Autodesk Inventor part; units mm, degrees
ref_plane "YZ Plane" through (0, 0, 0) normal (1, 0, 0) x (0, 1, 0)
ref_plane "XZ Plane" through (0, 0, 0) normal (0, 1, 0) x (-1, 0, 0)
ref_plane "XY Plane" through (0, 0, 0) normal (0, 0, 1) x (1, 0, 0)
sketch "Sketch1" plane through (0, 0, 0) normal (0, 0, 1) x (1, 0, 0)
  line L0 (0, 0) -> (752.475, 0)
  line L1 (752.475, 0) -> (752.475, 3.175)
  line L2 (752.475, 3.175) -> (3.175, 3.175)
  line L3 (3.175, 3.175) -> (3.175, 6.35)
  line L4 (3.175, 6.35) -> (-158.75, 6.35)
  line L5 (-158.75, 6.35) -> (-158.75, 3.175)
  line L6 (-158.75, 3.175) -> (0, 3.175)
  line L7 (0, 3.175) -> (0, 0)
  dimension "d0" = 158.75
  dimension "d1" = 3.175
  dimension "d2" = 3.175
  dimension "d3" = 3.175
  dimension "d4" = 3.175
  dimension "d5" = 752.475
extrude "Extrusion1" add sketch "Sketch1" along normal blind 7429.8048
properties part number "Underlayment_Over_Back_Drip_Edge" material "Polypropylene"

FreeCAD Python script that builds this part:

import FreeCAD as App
import Part
import Sketcher

V = App.Vector
Q = App.Units.Quantity


def add_polygon(sketch, points):
    """Adds a closed chain of lines whose ends are joined by coincident constraints."""
    first, n = sketch.GeometryCount, len(points)
    for a, b in zip(points, points[1:] + points[:1]):
        sketch.addGeometry(Part.LineSegment(App.Vector(*a, 0), App.Vector(*b, 0)), False)
    for i in range(n):
        sketch.addConstraint(Sketcher.Constraint("Coincident", first + i, 2, first + (i + 1) % n, 1))

doc = App.newDocument("Part")
body = doc.addObject("PartDesign::Body", "Body")

sketch1 = doc.addObject("Sketcher::SketchObject", "Sketch")
body.addObject(sketch1)
sketch1.AttachmentSupport = (doc.XY_Plane, [""])
sketch1.MapMode = "FlatFace"
add_polygon(sketch1, [(0, 3.2), (0, 0), (752.5, 0), (752.5, 3.2), (3.2, 3.2), (3.2, 6.3), (-158.8, 6.3), (-158.8, 3.2)])
sketch1.addConstraint([
    Sketcher.Constraint("Vertical", 0),
    Sketcher.Constraint("Horizontal", 1),
    Sketcher.Constraint("Vertical", 2),
    Sketcher.Constraint("Horizontal", 3),
    Sketcher.Constraint("Vertical", 4),
    Sketcher.Constraint("Horizontal", 5),
    Sketcher.Constraint("Vertical", 6),
    Sketcher.Constraint("Horizontal", 7),
    Sketcher.Constraint("Coincident", 0, 2, -1, 1),
    Sketcher.Constraint("Horizontal", 3, 2, 6, 2),
    Sketcher.Constraint("Equal", 2, 4),
    Sketcher.Constraint("DistanceX", 7, 1, 7, 2, Q("6.25 in")),
    Sketcher.Constraint("DistanceX", 1, 1, 1, 2, Q("29.625 in")),
    Sketcher.Constraint("DistanceY", 0, 2, 0, 1, Q("0.125 in")),
    Sketcher.Constraint("DistanceX", 3, 2, 3, 1, Q("29.5 in")),
])
pad1 = doc.addObject("PartDesign::Pad", "Pad")
body.addObject(pad1)
pad1.Profile = sketch1
pad1.Length = Q("292.512 in")

doc.recompute()
